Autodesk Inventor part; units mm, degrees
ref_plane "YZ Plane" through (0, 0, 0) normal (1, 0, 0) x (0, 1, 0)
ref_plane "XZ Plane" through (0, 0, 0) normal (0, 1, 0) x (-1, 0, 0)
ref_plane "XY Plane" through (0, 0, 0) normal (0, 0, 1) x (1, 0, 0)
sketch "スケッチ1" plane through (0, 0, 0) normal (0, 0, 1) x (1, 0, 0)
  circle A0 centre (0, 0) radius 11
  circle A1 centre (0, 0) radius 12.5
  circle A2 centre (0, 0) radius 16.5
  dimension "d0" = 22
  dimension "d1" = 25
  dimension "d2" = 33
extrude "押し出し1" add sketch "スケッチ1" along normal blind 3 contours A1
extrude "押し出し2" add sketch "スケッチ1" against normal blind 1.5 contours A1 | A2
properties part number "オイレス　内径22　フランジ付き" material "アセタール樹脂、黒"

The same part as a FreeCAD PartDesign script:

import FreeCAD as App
import Part
import Sketcher

V = App.Vector
Q = App.Units.Quantity

doc = App.newDocument("Part")
body = doc.addObject("PartDesign::Body", "Body")

# Sketch on XY plane
sketch1 = body.newObject("Sketcher::SketchObject", "Sketch")
sketch1.AttachmentSupport = (doc.getObject("XY_Plane"), [""])
sketch1.MapMode = "FlatFace"
sketch1.addGeometry([
    Part.Circle(V(0, 0, 0), V(0, 0, 1), 12),
    Part.Circle(V(0, 0, 0), V(0, 0, 1), 11),
], False)
sketch1.addConstraint([
    Sketcher.Constraint("Coincident", 0, 3, -1, 1),
    Sketcher.Constraint("Coincident", 1, 3, -1, 1),
    Sketcher.Constraint("Diameter", 0, Q("25 mm")),
    Sketcher.Constraint("Diameter", 1, Q("22 mm")),
])
pad1 = body.newObject("PartDesign::Pad", "Pad")
pad1.Profile = sketch1
pad1.Length = 3

# Sketch on XY plane
sketch2 = body.newObject("Sketcher::SketchObject", "Sketch001")
sketch2.AttachmentSupport = (doc.getObject("XY_Plane"), [""])
sketch2.MapMode = "FlatFace"
sketch2.addGeometry([
    Part.Circle(V(0, 0, 0), V(0, 0, 1), 16),
    Part.Circle(V(0, 0, 0), V(0, 0, 1), 11),
], False)
sketch2.addConstraint([
    Sketcher.Constraint("Coincident", 0, 3, -1, 1),
    Sketcher.Constraint("Coincident", 1, 3, -1, 1),
    Sketcher.Constraint("Diameter", 0, Q("33 mm")),
    Sketcher.Constraint("Diameter", 1, Q("22 mm")),
])
pad2 = body.newObject("PartDesign::Pad", "Pad001")
pad2.Profile = sketch2
pad2.Length = 1.5
pad2.Reversed = True

doc.recompute()
